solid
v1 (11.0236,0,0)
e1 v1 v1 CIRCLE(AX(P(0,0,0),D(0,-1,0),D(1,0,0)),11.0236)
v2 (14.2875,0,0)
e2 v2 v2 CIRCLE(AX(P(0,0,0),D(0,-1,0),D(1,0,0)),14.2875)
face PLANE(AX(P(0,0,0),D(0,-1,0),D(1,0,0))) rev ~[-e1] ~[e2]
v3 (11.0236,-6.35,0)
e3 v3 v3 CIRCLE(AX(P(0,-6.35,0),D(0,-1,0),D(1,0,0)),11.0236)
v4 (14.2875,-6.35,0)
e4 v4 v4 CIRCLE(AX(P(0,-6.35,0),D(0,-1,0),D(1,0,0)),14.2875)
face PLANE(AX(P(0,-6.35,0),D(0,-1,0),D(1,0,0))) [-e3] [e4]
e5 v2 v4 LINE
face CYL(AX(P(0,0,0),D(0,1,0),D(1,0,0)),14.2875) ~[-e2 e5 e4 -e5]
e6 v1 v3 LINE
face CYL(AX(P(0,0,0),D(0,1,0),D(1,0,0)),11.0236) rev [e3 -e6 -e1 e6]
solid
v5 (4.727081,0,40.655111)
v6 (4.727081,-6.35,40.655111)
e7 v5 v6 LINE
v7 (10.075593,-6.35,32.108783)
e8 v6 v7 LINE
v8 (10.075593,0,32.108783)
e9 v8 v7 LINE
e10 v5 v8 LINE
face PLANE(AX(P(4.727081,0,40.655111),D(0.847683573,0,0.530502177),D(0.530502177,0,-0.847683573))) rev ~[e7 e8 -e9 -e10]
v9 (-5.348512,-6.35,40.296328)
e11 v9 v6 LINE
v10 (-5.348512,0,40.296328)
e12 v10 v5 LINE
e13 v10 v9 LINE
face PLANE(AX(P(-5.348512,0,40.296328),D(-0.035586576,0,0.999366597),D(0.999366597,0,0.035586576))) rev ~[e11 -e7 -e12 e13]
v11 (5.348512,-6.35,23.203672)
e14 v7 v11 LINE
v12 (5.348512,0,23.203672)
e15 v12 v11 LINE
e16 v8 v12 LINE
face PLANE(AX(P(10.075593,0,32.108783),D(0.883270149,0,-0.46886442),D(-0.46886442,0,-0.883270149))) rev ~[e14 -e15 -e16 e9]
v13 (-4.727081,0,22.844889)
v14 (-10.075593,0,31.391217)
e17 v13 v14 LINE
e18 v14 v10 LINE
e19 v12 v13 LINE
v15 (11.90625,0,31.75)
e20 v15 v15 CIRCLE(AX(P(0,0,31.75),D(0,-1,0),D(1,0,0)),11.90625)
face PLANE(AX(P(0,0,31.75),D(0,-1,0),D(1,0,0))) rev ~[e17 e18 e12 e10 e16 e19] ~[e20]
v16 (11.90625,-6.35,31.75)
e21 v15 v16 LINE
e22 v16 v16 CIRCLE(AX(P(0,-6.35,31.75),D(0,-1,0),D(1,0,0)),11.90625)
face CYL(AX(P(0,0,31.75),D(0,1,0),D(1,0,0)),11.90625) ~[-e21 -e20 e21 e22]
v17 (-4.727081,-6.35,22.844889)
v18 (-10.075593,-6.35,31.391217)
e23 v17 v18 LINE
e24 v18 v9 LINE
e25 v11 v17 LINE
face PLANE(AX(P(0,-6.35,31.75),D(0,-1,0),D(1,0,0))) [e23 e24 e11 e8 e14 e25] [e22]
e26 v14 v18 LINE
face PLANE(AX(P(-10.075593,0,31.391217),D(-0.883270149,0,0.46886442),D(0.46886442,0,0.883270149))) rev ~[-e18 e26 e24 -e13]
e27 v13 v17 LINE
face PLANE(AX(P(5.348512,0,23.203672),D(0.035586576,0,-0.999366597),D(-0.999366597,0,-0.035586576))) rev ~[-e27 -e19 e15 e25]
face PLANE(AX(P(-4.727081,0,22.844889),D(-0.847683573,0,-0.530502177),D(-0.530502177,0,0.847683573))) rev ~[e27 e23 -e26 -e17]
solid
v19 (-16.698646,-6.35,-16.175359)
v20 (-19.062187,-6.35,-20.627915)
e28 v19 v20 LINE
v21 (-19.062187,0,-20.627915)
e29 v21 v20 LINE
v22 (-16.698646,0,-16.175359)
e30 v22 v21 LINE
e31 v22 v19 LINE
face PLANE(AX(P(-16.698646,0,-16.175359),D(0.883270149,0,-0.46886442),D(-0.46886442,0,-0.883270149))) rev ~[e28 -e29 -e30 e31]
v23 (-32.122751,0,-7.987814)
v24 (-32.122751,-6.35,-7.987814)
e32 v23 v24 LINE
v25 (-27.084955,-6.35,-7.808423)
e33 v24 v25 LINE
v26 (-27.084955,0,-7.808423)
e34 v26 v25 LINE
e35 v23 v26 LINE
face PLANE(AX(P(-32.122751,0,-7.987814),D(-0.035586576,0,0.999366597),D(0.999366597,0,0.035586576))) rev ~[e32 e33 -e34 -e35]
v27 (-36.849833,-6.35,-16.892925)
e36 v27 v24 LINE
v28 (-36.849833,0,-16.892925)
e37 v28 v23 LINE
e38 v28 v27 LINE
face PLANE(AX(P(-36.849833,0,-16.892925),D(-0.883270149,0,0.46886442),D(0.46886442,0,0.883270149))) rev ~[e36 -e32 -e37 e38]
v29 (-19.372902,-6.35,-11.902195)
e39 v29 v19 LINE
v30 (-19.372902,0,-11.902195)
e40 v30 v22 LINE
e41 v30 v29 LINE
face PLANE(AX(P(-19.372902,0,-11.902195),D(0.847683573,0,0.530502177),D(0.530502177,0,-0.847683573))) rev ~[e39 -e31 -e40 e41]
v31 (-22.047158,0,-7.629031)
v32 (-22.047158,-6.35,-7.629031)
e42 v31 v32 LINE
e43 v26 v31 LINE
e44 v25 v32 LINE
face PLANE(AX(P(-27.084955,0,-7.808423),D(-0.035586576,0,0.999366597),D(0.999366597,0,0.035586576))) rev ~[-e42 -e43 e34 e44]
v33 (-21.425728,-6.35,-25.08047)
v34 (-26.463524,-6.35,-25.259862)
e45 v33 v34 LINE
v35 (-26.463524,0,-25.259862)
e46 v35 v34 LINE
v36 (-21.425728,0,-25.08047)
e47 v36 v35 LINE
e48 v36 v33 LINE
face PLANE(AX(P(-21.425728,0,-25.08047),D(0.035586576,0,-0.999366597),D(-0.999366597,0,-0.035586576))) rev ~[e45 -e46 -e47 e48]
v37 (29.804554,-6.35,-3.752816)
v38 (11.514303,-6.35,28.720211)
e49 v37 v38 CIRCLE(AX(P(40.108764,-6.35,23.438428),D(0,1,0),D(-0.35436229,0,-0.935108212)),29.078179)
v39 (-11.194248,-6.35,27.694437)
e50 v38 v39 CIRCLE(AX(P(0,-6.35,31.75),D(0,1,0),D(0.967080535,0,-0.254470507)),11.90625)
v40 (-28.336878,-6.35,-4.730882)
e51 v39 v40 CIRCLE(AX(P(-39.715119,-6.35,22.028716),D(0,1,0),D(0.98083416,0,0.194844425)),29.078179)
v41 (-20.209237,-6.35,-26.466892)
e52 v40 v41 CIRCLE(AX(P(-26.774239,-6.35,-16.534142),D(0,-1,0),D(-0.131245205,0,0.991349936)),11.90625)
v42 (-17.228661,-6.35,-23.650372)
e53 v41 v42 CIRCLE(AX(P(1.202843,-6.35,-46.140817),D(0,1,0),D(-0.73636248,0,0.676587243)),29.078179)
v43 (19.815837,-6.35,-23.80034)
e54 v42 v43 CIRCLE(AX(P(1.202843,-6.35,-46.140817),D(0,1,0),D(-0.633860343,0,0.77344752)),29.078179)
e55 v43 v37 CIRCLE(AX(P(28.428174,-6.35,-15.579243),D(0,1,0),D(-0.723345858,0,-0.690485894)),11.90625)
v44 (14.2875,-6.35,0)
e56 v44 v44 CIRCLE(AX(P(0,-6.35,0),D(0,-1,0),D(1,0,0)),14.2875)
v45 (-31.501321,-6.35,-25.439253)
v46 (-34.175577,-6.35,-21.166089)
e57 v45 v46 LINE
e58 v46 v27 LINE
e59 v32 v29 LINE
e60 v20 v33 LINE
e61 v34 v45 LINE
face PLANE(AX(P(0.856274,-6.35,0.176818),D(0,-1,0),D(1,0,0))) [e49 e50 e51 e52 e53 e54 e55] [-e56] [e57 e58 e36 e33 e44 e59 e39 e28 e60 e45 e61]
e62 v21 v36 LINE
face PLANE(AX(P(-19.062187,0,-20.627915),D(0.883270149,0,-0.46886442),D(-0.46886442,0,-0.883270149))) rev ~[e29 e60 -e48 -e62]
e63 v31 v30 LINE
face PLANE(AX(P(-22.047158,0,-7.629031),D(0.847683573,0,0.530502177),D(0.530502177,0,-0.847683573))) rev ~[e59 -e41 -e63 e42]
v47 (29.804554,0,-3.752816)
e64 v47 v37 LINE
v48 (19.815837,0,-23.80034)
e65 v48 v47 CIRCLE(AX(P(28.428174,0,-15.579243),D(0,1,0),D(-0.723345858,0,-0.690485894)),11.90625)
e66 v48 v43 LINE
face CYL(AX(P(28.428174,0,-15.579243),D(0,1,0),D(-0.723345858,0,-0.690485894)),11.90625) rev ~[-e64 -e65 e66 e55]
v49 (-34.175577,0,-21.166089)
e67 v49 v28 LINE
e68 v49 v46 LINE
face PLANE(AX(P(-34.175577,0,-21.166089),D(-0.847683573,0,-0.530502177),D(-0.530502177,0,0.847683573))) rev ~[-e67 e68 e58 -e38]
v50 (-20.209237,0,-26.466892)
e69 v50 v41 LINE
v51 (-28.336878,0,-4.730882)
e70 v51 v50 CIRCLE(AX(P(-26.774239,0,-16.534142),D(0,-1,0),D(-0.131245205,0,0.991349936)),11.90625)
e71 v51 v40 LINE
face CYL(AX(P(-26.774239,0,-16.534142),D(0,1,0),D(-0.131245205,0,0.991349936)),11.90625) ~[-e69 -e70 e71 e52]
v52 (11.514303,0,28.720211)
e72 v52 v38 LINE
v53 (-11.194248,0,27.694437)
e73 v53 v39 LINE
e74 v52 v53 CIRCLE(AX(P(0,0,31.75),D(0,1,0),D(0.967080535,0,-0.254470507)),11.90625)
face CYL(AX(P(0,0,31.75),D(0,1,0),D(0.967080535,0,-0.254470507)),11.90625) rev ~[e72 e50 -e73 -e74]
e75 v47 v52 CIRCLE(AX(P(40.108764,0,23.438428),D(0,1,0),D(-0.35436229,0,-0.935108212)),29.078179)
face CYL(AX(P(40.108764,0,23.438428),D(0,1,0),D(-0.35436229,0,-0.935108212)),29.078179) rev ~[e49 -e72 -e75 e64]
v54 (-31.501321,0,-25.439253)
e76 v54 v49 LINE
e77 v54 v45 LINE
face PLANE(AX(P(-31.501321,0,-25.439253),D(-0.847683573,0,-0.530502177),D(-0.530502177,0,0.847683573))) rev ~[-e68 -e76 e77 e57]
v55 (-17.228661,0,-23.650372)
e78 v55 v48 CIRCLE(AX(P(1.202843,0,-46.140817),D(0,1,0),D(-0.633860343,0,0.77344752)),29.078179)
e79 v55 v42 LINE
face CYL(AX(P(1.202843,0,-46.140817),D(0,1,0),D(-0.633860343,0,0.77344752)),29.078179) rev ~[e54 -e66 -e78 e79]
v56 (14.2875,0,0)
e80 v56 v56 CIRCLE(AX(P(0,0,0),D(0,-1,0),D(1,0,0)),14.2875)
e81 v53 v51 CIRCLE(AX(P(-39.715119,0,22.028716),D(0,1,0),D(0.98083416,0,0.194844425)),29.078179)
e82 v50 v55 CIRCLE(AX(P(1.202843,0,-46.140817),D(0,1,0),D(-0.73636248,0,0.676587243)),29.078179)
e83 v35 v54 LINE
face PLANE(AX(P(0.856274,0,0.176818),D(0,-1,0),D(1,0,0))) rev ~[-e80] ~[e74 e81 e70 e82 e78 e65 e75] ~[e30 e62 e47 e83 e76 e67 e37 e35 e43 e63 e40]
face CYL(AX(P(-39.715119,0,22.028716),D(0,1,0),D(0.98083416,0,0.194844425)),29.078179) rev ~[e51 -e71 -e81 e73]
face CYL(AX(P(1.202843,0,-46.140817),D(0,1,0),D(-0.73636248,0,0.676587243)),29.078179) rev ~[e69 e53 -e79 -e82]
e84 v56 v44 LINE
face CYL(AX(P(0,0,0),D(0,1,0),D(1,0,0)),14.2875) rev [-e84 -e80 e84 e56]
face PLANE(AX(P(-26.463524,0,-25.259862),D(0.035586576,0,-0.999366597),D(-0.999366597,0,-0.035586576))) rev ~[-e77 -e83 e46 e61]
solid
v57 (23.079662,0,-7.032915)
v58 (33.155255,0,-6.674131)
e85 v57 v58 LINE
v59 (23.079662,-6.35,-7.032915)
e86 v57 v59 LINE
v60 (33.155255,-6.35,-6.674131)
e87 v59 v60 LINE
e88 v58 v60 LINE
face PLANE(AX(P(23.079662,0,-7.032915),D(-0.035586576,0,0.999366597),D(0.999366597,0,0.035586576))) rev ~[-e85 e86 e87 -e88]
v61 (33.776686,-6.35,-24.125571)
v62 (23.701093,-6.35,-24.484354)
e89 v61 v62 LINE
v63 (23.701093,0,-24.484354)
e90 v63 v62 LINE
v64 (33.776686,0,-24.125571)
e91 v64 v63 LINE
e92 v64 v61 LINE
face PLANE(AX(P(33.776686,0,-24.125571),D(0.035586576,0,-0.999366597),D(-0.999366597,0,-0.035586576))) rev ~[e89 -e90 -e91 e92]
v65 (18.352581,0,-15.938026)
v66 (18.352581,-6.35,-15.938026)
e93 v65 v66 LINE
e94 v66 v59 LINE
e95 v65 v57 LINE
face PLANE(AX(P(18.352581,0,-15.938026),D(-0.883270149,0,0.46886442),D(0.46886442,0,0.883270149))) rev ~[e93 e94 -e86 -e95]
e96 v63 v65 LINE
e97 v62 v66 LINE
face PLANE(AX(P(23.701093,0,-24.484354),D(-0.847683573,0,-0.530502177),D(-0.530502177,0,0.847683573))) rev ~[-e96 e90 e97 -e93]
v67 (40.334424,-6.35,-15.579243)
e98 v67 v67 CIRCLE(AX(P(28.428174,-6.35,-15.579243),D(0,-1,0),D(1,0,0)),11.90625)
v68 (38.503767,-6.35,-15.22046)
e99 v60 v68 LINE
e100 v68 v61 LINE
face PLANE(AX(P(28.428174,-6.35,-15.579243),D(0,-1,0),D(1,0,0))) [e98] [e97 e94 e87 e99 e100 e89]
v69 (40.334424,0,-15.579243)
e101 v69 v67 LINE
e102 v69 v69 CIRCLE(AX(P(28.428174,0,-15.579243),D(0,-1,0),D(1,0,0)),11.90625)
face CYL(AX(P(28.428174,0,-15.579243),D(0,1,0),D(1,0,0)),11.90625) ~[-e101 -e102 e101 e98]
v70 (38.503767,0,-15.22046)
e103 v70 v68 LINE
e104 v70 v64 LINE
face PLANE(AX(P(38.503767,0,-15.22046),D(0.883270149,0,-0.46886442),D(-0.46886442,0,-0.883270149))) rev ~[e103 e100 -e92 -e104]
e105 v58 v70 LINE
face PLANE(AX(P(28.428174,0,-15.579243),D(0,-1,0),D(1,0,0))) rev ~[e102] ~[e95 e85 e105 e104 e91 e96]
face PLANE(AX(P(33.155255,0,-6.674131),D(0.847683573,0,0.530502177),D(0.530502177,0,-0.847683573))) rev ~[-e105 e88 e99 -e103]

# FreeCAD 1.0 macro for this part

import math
import FreeCAD as App
import Part
import Sketcher

V = App.Vector
Q = App.Units.Quantity

doc = App.newDocument("Part")
body = doc.addObject("PartDesign::Body", "Body")

sketch1 = body.newObject("Sketcher::SketchObject", "Sketch")
sketch1.AttachmentSupport = (doc.getObject("XZ_Plane"), [""])
sketch1.MapMode = "FlatFace"
sketch1.addGeometry(Part.ArcOfCircle(Part.Circle(V(-39.715119, 22.028716, 0), V(0, 0, 1), 29.078179), math.radians(-66.964693), math.radians(11.235636)), False)
sketch1.addGeometry(Part.ArcOfCircle(Part.Circle(V(-26.774239, -16.534142, 0), V(0, 0, 1), 11.90625), math.radians(97.541554), math.radians(303.462514)), False)
sketch1.addGeometry(Part.ArcOfCircle(Part.Circle(V(1.202843, -46.140817, 0), V(0, 0, 1), 29.078179), math.radians(129.335509), math.radians(137.42247)), False)
sketch1.addGeometry(Part.ArcOfCircle(Part.Circle(V(1.202843, -46.140817, 0), V(0, 0, 1), 29.078179), math.radians(50.200589), math.radians(129.335509)), False)
sketch1.addGeometry(Part.ArcOfCircle(Part.Circle(V(28.428174, -15.579243, 0), V(0, 0, 1), 11.90625), math.radians(83.36168), math.radians(223.668584)), False)
sketch1.addGeometry(Part.ArcOfCircle(Part.Circle(V(40.108764, 23.438428, 0), V(0, 0, 1), 29.078179), math.radians(169.534655), math.radians(249.245634)), False)
sketch1.addGeometry(Part.ArcOfCircle(Part.Circle(V(0, 31.75, 0), V(0, 0, 1), 11.90625), math.radians(-160.085061), math.radians(-14.742212)), False)
sketch1.addGeometry(Part.LineSegment(V(-27.084955, -7.808423, 0), V(-22.047158, -7.629031, 0)), False)
sketch1.addGeometry(Part.LineSegment(V(-22.047158, -7.629031, 0), V(-19.372902, -11.902195, 0)), False)
sketch1.addGeometry(Part.LineSegment(V(-19.372902, -11.902195, 0), V(-16.698646, -16.175359, 0)), False)
sketch1.addGeometry(Part.LineSegment(V(-16.698646, -16.175359, 0), V(-19.062187, -20.627915, 0)), False)
sketch1.addGeometry(Part.LineSegment(V(-19.062187, -20.627915, 0), V(-21.425728, -25.08047, 0)), False)
sketch1.addGeometry(Part.LineSegment(V(-21.425728, -25.08047, 0), V(-26.463524, -25.259862, 0)), False)
sketch1.addGeometry(Part.LineSegment(V(-26.463524, -25.259862, 0), V(-31.501321, -25.439253, 0)), False)
sketch1.addGeometry(Part.LineSegment(V(-31.501321, -25.439253, 0), V(-34.175577, -21.166089, 0)), False)
sketch1.addGeometry(Part.LineSegment(V(-34.175577, -21.166089, 0), V(-36.849833, -16.892925, 0)), False)
sketch1.addGeometry(Part.LineSegment(V(-36.849833, -16.892925, 0), V(-32.122751, -7.987814, 0)), False)
sketch1.addGeometry(Part.LineSegment(V(-32.122751, -7.987814, 0), V(-27.084955, -7.808423, 0)), False)
sketch1.addGeometry(Part.Circle(V(0, 0, 0), V(0, 0, 1), 14.2875), False)
sketch1.addConstraint(Sketcher.Constraint("Coincident", 0, 1, 1, 1))
sketch1.addConstraint(Sketcher.Constraint("Coincident", 1, 2, 2, 2))
sketch1.addConstraint(Sketcher.Constraint("Tangent", 2, 1, 3, 2))
sketch1.addConstraint(Sketcher.Constraint("Coincident", 3, 1, 4, 2))
sketch1.addConstraint(Sketcher.Constraint("Coincident", 4, 1, 5, 2))
sketch1.addConstraint(Sketcher.Constraint("Coincident", 5, 1, 6, 2))
sketch1.addConstraint(Sketcher.Constraint("Coincident", 6, 1, 0, 2))
sketch1.addConstraint(Sketcher.Constraint("Coincident", 7, 2, 8, 1))
sketch1.addConstraint(Sketcher.Constraint("Coincident", 8, 2, 9, 1))
sketch1.addConstraint(Sketcher.Constraint("Coincident", 9, 2, 10, 1))
sketch1.addConstraint(Sketcher.Constraint("Coincident", 10, 2, 11, 1))
sketch1.addConstraint(Sketcher.Constraint("Coincident", 11, 2, 12, 1))
sketch1.addConstraint(Sketcher.Constraint("Coincident", 12, 2, 13, 1))
sketch1.addConstraint(Sketcher.Constraint("Coincident", 13, 2, 14, 1))
sketch1.addConstraint(Sketcher.Constraint("Coincident", 14, 2, 15, 1))
sketch1.addConstraint(Sketcher.Constraint("Coincident", 15, 2, 16, 1))
sketch1.addConstraint(Sketcher.Constraint("Coincident", 16, 2, 17, 1))
sketch1.addConstraint(Sketcher.Constraint("Coincident", 17, 2, 7, 1))
sketch1.addConstraint(Sketcher.Constraint("Coincident", 18, 3, -1, 1))
sketch1.addConstraint(Sketcher.Constraint("Equal", 0, 2))
sketch1.addConstraint(Sketcher.Constraint("Equal", 2, 3))
sketch1.addConstraint(Sketcher.Constraint("Equal", 1, 4))
sketch1.addConstraint(Sketcher.Constraint("Equal", 3, 5))
sketch1.addConstraint(Sketcher.Constraint("Equal", 4, 6))
sketch1.addConstraint(Sketcher.Constraint("PointOnObject", 6, 3, -2))
sketch1.addConstraint(Sketcher.Constraint("Parallel", 8, 9))
sketch1.addConstraint(Sketcher.Constraint("Parallel", 10, 11))
sketch1.addConstraint(Sketcher.Constraint("Parallel", 7, 12))
sketch1.addConstraint(Sketcher.Constraint("Parallel", 12, 13))
sketch1.addConstraint(Sketcher.Constraint("Parallel", 9, 14))
sketch1.addConstraint(Sketcher.Constraint("Parallel", 14, 15))
sketch1.addConstraint(Sketcher.Constraint("Parallel", 11, 16))
sketch1.addConstraint(Sketcher.Constraint("Parallel", 13, 17))
sketch1.addConstraint(Sketcher.Constraint("Equal", 7, 8))
sketch1.addConstraint(Sketcher.Constraint("Equal", 8, 9))
sketch1.addConstraint(Sketcher.Constraint("Equal", 9, 10))
sketch1.addConstraint(Sketcher.Constraint("Equal", 10, 11))
sketch1.addConstraint(Sketcher.Constraint("Equal", 11, 12))
sketch1.addConstraint(Sketcher.Constraint("Equal", 12, 13))
sketch1.addConstraint(Sketcher.Constraint("Equal", 13, 14))
sketch1.addConstraint(Sketcher.Constraint("Equal", 14, 15))
sketch1.addConstraint(Sketcher.Constraint("Diameter", 18, Q("1.125 in")))
sketch1.addConstraint(Sketcher.Constraint("Radius", 1, Q("0.46875 in")))
sketch1.addConstraint(Sketcher.Constraint("DistanceY", -1, 1, 6, 3, Q("1.25 in")))
sketch1.addConstraint(Sketcher.Constraint("Radius", 0, 29.078179))
sketch1.addConstraint(Sketcher.Constraint("DistanceY", 1, 3, 4, 3, 0.954899))
sketch1.addConstraint(Sketcher.Constraint("DistanceY", 0, 1, 0, 3, 26.759598))
sketch1.addConstraint(Sketcher.Constraint("DistanceX", 2, 1, 3, 1, 37.044499))
sketch1.addConstraint(Sketcher.Constraint("DistanceY", 11, 2, 2, 1, 1.430098))
sketch1.addConstraint(Sketcher.Constraint("Distance", 7, 5.04099))
sketch1.addConstraint(Sketcher.Constraint("DistanceX", 0, 3, -1, 1, 39.715119))
sketch1.addConstraint(Sketcher.Constraint("DistanceX", 1, 3, -1, 1, 26.774239))
sketch1.addConstraint(Sketcher.Constraint("DistanceY", 0, 1, -1, 1, 4.730882))
sketch1.addConstraint(Sketcher.Constraint("DistanceX", 2, 1, -1, 1, 17.228661))
sketch1.addConstraint(Sketcher.Constraint("DistanceY", 3, 1, -1, 1, 23.80034))
sketch1.addConstraint(Sketcher.Constraint("DistanceY", -1, 1, 5, 1, 28.720211))
sketch1.addConstraint(Sketcher.Constraint("DistanceX", 7, 2, -1, 1, 22.047158))
sketch1.addConstraint(Sketcher.Constraint("DistanceY", 7, 2, -1, 1, 7.629031))
sketch1.addConstraint(Sketcher.Constraint("DistanceY", 9, 2, -1, 1, 16.175359))
sketch1.addConstraint(Sketcher.Constraint("DistanceY", 11, 2, -1, 1, 25.08047))
sketch1.addConstraint(Sketcher.Constraint("DistanceY", 12, 2, -1, 1, 25.259862))
sketch1.addConstraint(Sketcher.Constraint("DistanceX", 4, 3, 5, 3, 11.68059))
pad1 = body.newObject("PartDesign::Pad", "Pad")
pad1.Profile = sketch1
pad1.Length = Q("0.25 in")
body2 = doc.addObject("PartDesign::Body", "Body001")

sketch2 = body2.newObject("Sketcher::SketchObject", "Sketch001")
sketch2.AttachmentSupport = (doc.getObject("XZ_Plane001"), [""])
sketch2.MapMode = "FlatFace"
sketch2.addGeometry(Part.Circle(V(0, 0, 0), V(0, 0, 1), 14.2875), False)
sketch2.addGeometry(Part.Circle(V(0, 0, 0), V(0, 0, 1), 11.0236), False)
sketch2.addConstraint(Sketcher.Constraint("Coincident", 0, 3, -1, 1))
sketch2.addConstraint(Sketcher.Constraint("Coincident", 1, 3, -1, 1))
sketch2.addConstraint(Sketcher.Constraint("Diameter", 0, Q("1.125 in")))
sketch2.addConstraint(Sketcher.Constraint("Diameter", 1, Q("0.868 in")))
pad2 = body2.newObject("PartDesign::Pad", "Pad001")
pad2.Profile = sketch2
pad2.Length = Q("0.25 in")
body3 = doc.addObject("PartDesign::Body", "Body002")

sketch3 = body3.newObject("Sketcher::SketchObject", "Sketch002")
sketch3.AttachmentSupport = (doc.getObject("XZ_Plane002"), [""])
sketch3.MapMode = "FlatFace"
sketch3.addGeometry(Part.Circle(V(0, 31.75, 0), V(0, 0, 1), 11.90625), False)
sketch3.addGeometry(Part.LineSegment(V(-5.348512, 40.296328, 0), V(4.727081, 40.655111, 0)), False)
sketch3.addGeometry(Part.LineSegment(V(4.727081, 40.655111, 0), V(10.075593, 32.108783, 0)), False)
sketch3.addGeometry(Part.LineSegment(V(10.075593, 32.108783, 0), V(5.348512, 23.203672, 0)), False)
sketch3.addGeometry(Part.LineSegment(V(5.348512, 23.203672, 0), V(-4.727081, 22.844889, 0)), False)
sketch3.addGeometry(Part.LineSegment(V(-4.727081, 22.844889, 0), V(-10.075593, 31.391217, 0)), False)
sketch3.addGeometry(Part.LineSegment(V(-10.075593, 31.391217, 0), V(-5.348512, 40.296328, 0)), False)
sketch3.addConstraint(Sketcher.Constraint("Coincident", 1, 2, 2, 1))
sketch3.addConstraint(Sketcher.Constraint("Coincident", 2, 2, 3, 1))
sketch3.addConstraint(Sketcher.Constraint("Coincident", 3, 2, 4, 1))
sketch3.addConstraint(Sketcher.Constraint("Coincident", 4, 2, 5, 1))
sketch3.addConstraint(Sketcher.Constraint("Coincident", 5, 2, 6, 1))
sketch3.addConstraint(Sketcher.Constraint("Coincident", 6, 2, 1, 1))
sketch3.addConstraint(Sketcher.Constraint("PointOnObject", 0, 3, -2))
sketch3.addConstraint(Sketcher.Constraint("Parallel", 1, 4))
sketch3.addConstraint(Sketcher.Constraint("Parallel", 2, 5))
sketch3.addConstraint(Sketcher.Constraint("Parallel", 3, 6))
sketch3.addConstraint(Sketcher.Constraint("Equal", 1, 2))
sketch3.addConstraint(Sketcher.Constraint("Equal", 2, 3))
sketch3.addConstraint(Sketcher.Constraint("Equal", 3, 4))
sketch3.addConstraint(Sketcher.Constraint("Diameter", 0, Q("0.9375 in")))
sketch3.addConstraint(Sketcher.Constraint("DistanceY", -1, 1, 0, 3, Q("1.25 in")))
sketch3.addConstraint(Sketcher.Constraint("Distance", 1, 10.081979))
sketch3.addConstraint(Sketcher.Constraint("DistanceX", -1, 1, 1, 2, 4.727081))
sketch3.addConstraint(Sketcher.Constraint("DistanceY", -1, 1, 1, 2, 40.655111))
sketch3.addConstraint(Sketcher.Constraint("DistanceX", -1, 1, 3, 2, 5.348512))
sketch3.addConstraint(Sketcher.Constraint("DistanceY", -1, 1, 3, 2, 23.203672))
sketch3.addConstraint(Sketcher.Constraint("DistanceX", 4, 2, -1, 1, 4.727081))
pad3 = body3.newObject("PartDesign::Pad", "Pad002")
pad3.Profile = sketch3
pad3.Length = Q("0.25 in")
body4 = doc.addObject("PartDesign::Body", "Body003")

sketch4 = body4.newObject("Sketcher::SketchObject", "Sketch003")
sketch4.AttachmentSupport = (doc.getObject("XZ_Plane003"), [""])
sketch4.MapMode = "FlatFace"
sketch4.addGeometry(Part.Circle(V(28.428174, -15.579243, 0), V(0, 0, 1), 11.90625), False)
sketch4.addGeometry(Part.LineSegment(V(33.155255, -6.674131, 0), V(38.503767, -15.22046, 0)), False)
sketch4.addGeometry(Part.LineSegment(V(38.503767, -15.22046, 0), V(33.776686, -24.125571, 0)), False)
sketch4.addGeometry(Part.LineSegment(V(33.776686, -24.125571, 0), V(23.701093, -24.484354, 0)), False)
sketch4.addGeometry(Part.LineSegment(V(23.701093, -24.484354, 0), V(18.352581, -15.938026, 0)), False)
sketch4.addGeometry(Part.LineSegment(V(18.352581, -15.938026, 0), V(23.079662, -7.032915, 0)), False)
sketch4.addGeometry(Part.LineSegment(V(23.079662, -7.032915, 0), V(33.155255, -6.674131, 0)), False)
sketch4.addConstraint(Sketcher.Constraint("Coincident", 1, 2, 2, 1))
sketch4.addConstraint(Sketcher.Constraint("Coincident", 2, 2, 3, 1))
sketch4.addConstraint(Sketcher.Constraint("Coincident", 3, 2, 4, 1))
sketch4.addConstraint(Sketcher.Constraint("Coincident", 4, 2, 5, 1))
sketch4.addConstraint(Sketcher.Constraint("Coincident", 5, 2, 6, 1))
sketch4.addConstraint(Sketcher.Constraint("Coincident", 6, 2, 1, 1))
sketch4.addConstraint(Sketcher.Constraint("Parallel", 1, 4))
sketch4.addConstraint(Sketcher.Constraint("Parallel", 2, 5))
sketch4.addConstraint(Sketcher.Constraint("Parallel", 3, 6))
sketch4.addConstraint(Sketcher.Constraint("Equal", 1, 2))
sketch4.addConstraint(Sketcher.Constraint("Equal", 2, 3))
sketch4.addConstraint(Sketcher.Constraint("Equal", 3, 4))
sketch4.addConstraint(Sketcher.Constraint("Diameter", 0, Q("0.9375 in")))
sketch4.addConstraint(Sketcher.Constraint("Distance", 1, 10.081979))
sketch4.addConstraint(Sketcher.Constraint("DistanceY", 1, 2, -1, 1, 15.22046))
sketch4.addConstraint(Sketcher.Constraint("DistanceY", 2, 2, -1, 1, 24.125571))
sketch4.addConstraint(Sketcher.Constraint("DistanceX", -1, 1, 4, 2, 18.352581))
sketch4.addConstraint(Sketcher.Constraint("DistanceY", 6, 2, -1, 1, 6.674131))
sketch4.addConstraint(Sketcher.Constraint("DistanceX", 0, 3, 2, 2, 5.348512))
sketch4.addConstraint(Sketcher.Constraint("DistanceY", 2, 2, 0, 3, 8.546328))
sketch4.addConstraint(Sketcher.Constraint("DistanceX", 3, 2, 0, 3, 4.727081))
pad4 = body4.newObject("PartDesign::Pad", "Pad003")
pad4.Profile = sketch4
pad4.Length = Q("0.25 in")

doc.recompute()
